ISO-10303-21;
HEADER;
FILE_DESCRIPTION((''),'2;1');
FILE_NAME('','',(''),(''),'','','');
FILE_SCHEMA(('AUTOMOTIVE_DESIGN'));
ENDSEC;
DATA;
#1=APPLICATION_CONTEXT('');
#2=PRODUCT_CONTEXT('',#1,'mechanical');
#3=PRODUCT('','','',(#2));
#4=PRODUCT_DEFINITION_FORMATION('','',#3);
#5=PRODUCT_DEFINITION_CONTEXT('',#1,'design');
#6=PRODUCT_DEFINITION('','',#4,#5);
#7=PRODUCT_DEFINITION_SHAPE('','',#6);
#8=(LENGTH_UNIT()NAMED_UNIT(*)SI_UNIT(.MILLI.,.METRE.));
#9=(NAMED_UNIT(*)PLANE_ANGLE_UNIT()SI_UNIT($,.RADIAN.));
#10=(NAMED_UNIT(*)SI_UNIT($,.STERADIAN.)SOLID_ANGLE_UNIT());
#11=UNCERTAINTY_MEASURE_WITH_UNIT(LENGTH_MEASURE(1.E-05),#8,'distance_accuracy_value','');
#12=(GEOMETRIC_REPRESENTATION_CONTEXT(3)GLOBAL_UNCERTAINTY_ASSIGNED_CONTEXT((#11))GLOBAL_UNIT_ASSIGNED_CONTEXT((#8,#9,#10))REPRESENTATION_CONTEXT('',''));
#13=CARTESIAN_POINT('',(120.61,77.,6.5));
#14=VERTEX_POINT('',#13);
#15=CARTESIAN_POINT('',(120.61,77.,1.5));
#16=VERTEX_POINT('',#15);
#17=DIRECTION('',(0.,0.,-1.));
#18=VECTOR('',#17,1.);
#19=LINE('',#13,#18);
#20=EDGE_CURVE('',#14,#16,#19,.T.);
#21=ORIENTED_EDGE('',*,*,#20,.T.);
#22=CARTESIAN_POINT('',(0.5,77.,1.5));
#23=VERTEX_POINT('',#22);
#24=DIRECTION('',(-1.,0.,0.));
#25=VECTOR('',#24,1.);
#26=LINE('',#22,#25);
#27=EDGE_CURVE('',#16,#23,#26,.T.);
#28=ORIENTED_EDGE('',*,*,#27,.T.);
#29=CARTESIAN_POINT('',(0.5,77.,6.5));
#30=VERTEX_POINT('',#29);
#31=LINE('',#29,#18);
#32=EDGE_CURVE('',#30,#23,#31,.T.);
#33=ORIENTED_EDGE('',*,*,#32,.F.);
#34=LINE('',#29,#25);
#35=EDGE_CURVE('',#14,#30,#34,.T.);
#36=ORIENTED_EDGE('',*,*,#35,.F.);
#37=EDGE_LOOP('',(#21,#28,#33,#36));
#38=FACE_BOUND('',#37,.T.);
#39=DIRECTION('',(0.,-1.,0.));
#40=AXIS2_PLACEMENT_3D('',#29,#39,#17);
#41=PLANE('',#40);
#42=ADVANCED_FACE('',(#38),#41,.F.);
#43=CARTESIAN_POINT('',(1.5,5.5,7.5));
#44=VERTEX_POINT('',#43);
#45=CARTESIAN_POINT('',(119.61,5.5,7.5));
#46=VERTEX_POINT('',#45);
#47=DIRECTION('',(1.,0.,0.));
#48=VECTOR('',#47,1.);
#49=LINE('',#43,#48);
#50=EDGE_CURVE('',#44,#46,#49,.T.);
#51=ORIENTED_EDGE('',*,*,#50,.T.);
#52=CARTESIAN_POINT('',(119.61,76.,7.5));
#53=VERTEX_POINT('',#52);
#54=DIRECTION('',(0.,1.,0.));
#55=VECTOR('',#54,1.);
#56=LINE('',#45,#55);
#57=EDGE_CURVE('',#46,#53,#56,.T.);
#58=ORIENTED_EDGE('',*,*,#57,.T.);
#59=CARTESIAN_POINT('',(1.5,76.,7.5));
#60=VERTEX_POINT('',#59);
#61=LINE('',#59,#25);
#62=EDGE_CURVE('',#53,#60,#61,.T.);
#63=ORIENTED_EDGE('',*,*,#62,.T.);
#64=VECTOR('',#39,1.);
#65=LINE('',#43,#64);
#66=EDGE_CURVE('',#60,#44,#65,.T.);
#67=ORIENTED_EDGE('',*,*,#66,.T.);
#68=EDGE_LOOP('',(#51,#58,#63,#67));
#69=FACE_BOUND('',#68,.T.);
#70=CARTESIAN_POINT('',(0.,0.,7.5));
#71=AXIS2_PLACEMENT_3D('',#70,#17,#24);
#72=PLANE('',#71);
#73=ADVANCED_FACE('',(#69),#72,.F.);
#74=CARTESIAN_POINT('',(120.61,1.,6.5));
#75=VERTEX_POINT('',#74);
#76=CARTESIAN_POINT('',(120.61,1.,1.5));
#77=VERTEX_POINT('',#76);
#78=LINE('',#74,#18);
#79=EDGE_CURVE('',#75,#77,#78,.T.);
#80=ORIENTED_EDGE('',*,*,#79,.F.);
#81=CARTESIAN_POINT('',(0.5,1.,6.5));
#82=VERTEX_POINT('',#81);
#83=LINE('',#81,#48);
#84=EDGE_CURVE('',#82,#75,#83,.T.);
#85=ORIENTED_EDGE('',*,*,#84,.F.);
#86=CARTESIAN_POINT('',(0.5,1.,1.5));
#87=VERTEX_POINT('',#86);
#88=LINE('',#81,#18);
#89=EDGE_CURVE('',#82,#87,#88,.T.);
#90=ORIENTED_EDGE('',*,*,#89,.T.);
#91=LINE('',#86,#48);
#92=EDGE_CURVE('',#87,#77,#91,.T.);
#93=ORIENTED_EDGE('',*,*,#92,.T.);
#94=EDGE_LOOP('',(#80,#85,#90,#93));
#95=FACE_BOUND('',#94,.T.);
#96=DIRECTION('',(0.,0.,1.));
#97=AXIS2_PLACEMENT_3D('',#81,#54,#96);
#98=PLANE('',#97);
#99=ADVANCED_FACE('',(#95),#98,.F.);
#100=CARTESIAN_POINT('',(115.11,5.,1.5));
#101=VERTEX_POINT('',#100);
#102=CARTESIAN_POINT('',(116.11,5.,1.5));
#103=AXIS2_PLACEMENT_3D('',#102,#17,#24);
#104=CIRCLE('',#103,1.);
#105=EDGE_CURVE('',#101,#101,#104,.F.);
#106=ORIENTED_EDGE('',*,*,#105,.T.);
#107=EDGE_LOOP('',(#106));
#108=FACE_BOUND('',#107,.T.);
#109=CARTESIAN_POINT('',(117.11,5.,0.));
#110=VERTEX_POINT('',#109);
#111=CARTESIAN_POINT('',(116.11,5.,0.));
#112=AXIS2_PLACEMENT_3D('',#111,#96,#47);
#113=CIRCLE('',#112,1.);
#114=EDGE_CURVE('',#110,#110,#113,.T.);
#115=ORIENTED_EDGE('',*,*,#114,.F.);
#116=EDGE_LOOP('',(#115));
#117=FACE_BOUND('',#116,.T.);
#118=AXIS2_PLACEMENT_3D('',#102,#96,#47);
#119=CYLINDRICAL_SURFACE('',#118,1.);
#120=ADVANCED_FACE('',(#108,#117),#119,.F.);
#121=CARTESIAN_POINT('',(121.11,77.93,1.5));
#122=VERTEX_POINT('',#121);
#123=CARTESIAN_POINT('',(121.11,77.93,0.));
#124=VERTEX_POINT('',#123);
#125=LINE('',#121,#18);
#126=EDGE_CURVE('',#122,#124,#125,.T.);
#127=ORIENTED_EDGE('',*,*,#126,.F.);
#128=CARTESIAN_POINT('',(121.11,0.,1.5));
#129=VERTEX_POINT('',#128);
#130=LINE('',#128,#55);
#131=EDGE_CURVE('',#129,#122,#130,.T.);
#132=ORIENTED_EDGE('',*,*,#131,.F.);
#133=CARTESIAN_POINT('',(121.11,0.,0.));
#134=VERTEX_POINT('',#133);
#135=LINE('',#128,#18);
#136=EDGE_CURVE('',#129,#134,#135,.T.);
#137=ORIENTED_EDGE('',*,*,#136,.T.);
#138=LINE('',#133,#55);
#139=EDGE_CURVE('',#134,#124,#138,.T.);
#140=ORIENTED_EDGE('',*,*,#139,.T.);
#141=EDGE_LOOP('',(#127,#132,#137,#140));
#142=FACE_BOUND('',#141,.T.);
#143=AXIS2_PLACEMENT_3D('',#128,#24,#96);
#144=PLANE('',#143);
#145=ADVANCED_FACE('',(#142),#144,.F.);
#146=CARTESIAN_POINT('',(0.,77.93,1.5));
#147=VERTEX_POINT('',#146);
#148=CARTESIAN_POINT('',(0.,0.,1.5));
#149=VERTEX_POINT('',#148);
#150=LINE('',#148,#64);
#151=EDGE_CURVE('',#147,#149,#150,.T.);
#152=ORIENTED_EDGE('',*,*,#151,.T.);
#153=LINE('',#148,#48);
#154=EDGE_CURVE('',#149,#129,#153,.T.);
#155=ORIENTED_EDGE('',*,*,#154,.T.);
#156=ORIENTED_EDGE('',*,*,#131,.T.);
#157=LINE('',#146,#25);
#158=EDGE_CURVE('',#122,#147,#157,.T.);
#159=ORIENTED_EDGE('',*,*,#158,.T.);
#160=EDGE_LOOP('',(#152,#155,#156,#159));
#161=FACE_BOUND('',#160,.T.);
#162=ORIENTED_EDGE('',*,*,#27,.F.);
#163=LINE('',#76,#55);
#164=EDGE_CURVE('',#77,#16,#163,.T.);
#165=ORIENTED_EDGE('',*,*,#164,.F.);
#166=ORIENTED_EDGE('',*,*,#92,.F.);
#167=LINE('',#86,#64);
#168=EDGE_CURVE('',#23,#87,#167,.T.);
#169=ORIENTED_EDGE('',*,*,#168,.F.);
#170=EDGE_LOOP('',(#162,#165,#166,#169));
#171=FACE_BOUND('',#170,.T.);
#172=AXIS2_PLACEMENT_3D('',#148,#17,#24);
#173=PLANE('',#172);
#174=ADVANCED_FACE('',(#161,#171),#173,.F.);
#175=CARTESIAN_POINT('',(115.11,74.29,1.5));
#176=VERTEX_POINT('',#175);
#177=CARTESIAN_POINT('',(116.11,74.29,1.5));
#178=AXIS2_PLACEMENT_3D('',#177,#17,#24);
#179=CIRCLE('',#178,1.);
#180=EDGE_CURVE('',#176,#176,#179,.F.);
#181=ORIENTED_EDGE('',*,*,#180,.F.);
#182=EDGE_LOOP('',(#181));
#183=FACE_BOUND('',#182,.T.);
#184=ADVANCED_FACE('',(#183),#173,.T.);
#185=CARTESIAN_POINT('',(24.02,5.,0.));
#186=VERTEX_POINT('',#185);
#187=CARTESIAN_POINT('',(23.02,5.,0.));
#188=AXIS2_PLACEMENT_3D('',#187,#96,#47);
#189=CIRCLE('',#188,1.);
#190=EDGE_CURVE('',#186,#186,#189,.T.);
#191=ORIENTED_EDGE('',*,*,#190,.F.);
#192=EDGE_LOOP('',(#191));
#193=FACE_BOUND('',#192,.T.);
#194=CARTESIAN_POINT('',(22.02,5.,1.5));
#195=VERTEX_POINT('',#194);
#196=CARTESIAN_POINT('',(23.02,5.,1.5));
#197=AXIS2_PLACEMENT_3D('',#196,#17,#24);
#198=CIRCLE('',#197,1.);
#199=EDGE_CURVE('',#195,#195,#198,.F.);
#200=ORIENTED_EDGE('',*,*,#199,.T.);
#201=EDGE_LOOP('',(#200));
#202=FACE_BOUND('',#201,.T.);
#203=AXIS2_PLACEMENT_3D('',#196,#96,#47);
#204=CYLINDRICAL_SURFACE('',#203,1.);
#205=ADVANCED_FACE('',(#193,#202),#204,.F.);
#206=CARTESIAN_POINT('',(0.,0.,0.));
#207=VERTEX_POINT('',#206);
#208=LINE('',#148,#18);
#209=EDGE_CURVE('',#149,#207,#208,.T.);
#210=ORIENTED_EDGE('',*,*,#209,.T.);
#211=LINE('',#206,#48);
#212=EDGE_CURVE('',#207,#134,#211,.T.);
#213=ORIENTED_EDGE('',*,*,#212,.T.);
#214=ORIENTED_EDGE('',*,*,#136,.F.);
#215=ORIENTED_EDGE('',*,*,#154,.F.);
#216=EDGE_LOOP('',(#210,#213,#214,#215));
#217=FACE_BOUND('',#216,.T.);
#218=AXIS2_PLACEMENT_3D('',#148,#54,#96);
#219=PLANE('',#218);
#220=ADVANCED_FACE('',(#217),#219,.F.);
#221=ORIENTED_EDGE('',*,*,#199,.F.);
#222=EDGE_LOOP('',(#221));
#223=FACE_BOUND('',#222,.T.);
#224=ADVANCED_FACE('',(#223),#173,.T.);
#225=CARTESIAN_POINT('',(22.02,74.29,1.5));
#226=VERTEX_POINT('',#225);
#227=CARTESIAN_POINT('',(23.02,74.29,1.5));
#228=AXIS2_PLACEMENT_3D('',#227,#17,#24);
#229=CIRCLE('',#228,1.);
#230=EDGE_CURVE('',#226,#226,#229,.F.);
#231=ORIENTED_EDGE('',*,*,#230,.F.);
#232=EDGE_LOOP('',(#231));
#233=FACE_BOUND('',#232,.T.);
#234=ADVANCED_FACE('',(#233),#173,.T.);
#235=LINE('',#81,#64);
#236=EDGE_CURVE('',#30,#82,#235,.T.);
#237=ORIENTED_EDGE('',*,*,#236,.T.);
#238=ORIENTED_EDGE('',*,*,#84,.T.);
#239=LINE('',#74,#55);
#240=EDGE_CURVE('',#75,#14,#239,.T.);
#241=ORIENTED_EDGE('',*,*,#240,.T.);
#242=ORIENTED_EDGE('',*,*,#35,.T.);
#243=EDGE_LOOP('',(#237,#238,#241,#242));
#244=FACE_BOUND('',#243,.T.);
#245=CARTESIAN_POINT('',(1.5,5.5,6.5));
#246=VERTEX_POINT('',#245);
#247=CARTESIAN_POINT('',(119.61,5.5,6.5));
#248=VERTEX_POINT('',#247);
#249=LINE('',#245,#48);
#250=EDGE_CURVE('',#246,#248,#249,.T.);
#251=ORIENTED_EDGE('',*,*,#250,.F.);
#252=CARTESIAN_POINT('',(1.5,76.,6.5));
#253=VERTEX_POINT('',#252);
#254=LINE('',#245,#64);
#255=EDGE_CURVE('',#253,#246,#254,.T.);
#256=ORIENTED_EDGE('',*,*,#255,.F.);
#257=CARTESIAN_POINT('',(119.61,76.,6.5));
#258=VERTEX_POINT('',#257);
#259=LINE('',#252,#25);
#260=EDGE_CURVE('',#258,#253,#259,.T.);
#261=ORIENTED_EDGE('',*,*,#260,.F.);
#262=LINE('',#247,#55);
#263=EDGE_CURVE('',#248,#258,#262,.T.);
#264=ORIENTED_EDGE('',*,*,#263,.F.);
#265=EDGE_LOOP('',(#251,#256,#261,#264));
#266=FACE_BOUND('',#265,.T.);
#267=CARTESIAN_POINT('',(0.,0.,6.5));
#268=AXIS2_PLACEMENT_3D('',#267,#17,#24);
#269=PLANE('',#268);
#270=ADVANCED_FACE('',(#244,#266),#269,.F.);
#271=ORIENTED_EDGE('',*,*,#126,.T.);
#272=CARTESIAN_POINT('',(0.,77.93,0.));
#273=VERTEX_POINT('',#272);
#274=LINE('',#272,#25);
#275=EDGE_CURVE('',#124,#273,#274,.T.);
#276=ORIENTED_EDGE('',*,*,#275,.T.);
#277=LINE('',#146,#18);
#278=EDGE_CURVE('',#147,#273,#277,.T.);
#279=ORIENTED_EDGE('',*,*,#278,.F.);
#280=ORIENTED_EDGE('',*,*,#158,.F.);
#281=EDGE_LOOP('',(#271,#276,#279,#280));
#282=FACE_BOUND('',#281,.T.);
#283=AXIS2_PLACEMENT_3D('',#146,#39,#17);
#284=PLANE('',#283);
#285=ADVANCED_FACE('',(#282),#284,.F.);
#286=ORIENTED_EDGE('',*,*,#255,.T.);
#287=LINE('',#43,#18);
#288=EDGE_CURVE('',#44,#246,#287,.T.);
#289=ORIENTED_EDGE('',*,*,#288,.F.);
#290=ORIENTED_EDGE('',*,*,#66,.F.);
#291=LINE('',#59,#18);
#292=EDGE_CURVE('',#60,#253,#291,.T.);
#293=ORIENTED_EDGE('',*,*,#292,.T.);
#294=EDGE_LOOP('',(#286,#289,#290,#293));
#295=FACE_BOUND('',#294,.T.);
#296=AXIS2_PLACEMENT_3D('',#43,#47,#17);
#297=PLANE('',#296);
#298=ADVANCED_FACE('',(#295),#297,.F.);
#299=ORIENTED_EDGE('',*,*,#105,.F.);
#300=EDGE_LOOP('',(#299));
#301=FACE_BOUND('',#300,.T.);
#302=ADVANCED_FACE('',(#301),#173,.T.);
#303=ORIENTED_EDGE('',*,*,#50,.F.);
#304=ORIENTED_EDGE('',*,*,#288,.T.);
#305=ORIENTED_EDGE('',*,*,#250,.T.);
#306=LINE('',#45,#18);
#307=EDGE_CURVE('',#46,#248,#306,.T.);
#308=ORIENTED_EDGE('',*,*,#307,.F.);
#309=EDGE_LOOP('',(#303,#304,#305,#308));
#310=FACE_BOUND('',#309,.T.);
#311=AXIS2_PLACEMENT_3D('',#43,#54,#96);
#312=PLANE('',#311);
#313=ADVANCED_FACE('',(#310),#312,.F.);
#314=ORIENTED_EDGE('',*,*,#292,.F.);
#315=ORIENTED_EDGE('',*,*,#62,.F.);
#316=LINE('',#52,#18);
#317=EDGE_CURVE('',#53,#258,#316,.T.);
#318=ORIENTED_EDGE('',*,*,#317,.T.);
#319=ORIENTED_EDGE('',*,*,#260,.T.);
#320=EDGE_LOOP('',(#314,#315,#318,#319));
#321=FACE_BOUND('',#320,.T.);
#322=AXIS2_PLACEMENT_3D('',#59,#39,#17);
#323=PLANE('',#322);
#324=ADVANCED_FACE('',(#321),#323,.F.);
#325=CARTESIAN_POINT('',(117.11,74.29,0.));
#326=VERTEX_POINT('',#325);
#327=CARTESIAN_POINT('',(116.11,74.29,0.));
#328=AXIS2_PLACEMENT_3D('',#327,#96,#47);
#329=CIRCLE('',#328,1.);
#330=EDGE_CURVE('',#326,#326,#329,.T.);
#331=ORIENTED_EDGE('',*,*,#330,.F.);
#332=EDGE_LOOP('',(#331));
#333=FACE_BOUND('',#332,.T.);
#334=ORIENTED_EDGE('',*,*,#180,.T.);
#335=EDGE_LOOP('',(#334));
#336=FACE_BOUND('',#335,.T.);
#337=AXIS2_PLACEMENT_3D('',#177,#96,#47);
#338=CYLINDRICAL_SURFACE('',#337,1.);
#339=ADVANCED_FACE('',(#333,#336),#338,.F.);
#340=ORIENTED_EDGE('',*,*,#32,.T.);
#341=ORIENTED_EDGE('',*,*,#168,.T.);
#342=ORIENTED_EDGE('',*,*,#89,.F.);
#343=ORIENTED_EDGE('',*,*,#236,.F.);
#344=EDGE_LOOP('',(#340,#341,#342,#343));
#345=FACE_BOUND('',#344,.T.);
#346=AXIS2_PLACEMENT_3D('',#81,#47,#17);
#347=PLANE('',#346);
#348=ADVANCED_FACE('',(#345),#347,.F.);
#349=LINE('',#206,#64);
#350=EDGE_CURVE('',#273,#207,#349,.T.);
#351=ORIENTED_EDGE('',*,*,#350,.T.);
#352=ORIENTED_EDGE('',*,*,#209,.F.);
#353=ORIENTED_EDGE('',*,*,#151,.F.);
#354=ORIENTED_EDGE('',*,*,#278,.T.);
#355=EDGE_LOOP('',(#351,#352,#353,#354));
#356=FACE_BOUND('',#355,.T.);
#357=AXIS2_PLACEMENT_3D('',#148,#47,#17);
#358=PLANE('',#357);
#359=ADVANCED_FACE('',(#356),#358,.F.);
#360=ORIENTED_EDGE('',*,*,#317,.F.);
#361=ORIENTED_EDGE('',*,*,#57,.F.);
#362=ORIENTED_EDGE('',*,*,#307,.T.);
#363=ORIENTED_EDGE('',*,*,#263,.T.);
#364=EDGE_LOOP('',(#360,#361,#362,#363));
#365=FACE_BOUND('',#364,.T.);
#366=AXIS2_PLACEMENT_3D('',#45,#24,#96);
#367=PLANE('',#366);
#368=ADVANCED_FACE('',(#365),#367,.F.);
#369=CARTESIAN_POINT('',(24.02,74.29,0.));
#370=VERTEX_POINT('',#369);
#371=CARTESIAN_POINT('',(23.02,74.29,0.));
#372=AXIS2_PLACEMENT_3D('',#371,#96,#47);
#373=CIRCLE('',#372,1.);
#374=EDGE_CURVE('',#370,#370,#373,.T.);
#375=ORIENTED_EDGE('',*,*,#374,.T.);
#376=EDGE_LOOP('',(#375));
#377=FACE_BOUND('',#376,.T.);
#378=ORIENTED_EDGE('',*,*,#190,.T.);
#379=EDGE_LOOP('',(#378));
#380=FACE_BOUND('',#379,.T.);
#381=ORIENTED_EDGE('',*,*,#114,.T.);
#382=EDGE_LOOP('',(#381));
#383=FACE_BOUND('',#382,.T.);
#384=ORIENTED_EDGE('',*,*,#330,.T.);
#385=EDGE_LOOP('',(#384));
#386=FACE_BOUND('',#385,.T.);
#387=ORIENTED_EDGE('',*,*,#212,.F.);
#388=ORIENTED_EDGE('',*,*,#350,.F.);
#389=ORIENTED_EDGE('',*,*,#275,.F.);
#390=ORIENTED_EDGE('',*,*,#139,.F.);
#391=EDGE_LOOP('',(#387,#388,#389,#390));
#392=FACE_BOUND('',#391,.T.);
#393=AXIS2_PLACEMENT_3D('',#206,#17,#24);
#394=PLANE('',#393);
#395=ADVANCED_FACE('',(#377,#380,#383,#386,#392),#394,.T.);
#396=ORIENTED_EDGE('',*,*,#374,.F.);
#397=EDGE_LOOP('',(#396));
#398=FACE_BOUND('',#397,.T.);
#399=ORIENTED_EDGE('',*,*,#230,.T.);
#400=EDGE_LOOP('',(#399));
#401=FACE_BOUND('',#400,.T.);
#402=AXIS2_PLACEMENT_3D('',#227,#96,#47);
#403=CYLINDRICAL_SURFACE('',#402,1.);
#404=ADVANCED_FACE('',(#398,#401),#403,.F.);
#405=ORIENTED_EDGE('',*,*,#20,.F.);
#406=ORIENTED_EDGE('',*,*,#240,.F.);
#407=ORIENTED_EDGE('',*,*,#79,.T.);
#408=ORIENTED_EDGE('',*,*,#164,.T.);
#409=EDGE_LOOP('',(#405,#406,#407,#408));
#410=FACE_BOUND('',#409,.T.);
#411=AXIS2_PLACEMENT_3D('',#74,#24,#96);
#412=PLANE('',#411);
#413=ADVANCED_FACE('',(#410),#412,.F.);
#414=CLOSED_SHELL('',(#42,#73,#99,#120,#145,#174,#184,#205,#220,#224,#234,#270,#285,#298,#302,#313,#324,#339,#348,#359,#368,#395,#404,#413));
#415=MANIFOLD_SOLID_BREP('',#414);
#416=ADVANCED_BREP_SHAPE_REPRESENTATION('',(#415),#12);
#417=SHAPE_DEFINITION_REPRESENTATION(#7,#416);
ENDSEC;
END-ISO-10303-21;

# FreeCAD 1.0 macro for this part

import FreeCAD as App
import Part
import Sketcher
from FreeCAD import Vector

doc = App.newDocument("Part")
body = doc.addObject("PartDesign::Body", "Body")

# Sketch on XY plane
sketch1 = body.newObject("Sketcher::SketchObject", "Sketch")
sketch1.AttachmentSupport = (doc.getObject("XY_Plane"), [""])
sketch1.MapMode = "FlatFace"
sketch1.addGeometry([
    Part.LineSegment(Vector(0, 77.93, 0), Vector(0, 0, 0)),
    Part.LineSegment(Vector(0, 0, 0), Vector(121.11, 0, 0)),
    Part.LineSegment(Vector(121.11, 0, 0), Vector(121.11, 77.93, 0)),
    Part.LineSegment(Vector(121.11, 77.93, 0), Vector(0, 77.93, 0)),
], False)
sketch1.addConstraint([
    Sketcher.Constraint("Coincident", 0, 2, 1, 1),
    Sketcher.Constraint("Coincident", 1, 2, 2, 1),
    Sketcher.Constraint("Coincident", 2, 2, 3, 1),
    Sketcher.Constraint("Coincident", 3, 2, 0, 1),
    Sketcher.Constraint("Vertical", 0),
    Sketcher.Constraint("Horizontal", 1),
    Sketcher.Constraint("Vertical", 2),
    Sketcher.Constraint("Horizontal", 3),
    Sketcher.Constraint("Coincident", 0, 2, -1, 1),
    Sketcher.Constraint("DistanceX", 1, 1, 1, 2, 121.11),
    Sketcher.Constraint("DistanceY", 0, 2, 0, 1, 77.93),
])
pad1 = body.newObject("PartDesign::Pad", "Pad")
pad1.Profile = sketch1
pad1.Length = 1.5

# Sketch on XY plane
sketch2 = body.newObject("Sketcher::SketchObject", "Sketch001")
sketch2.AttachmentSupport = (doc.getObject("XY_Plane"), [""])
sketch2.MapMode = "FlatFace"
sketch2.AttachmentOffset = App.Placement(Vector(0, 0, 1.5), App.Rotation())
sketch2.addGeometry([
    Part.Circle(Vector(23.02, 74.29, 0), Vector(0, 0, 1), 1),
    Part.Circle(Vector(23.02, 5, 0), Vector(0, 0, 1), 1),
    Part.Circle(Vector(116.11, 74.29, 0), Vector(0, 0, 1), 1),
    Part.Circle(Vector(116.11, 5, 0), Vector(0, 0, 1), 1),
], False)
sketch2.addConstraint([
    Sketcher.Constraint("Equal", 0, 1),
    Sketcher.Constraint("Equal", 1, 2),
    Sketcher.Constraint("Equal", 2, 3),
    Sketcher.Constraint("Horizontal", 0, 3, 2, 3),
    Sketcher.Constraint("Horizontal", 1, 3, 3, 3),
    Sketcher.Constraint("Vertical", 0, 3, 1, 3),
    Sketcher.Constraint("Vertical", 2, 3, 3, 3),
    Sketcher.Constraint("Diameter", 0, 2.0),
    Sketcher.Constraint("DistanceY", -1, 1, 1, 3, 5.0),
    Sketcher.Constraint("DistanceX", -1, 1, 0, 3, 23.02),
    Sketcher.Constraint("DistanceY", -1, 1, 0, 3, 74.29),
    Sketcher.Constraint("DistanceX", -1, 1, 2, 3, 116.11),
])
doc.recompute()
hole = body.newObject("PartDesign::Hole", "Hole")
hole.Profile = sketch2
hole.ThreadType = "None"
hole.Diameter = 2
hole.DepthType = "ThroughAll"

# Sketch on XY plane
sketch3 = body.newObject("Sketcher::SketchObject", "Sketch002")
sketch3.AttachmentSupport = (doc.getObject("XY_Plane"), [""])
sketch3.MapMode = "FlatFace"
sketch3.AttachmentOffset = App.Placement(Vector(0, 0, 1.5), App.Rotation())
sketch3.addGeometry([
    Part.LineSegment(Vector(0.5, 77, 0), Vector(0.5, 1, 0)),
    Part.LineSegment(Vector(0.5, 1, 0), Vector(120.61, 1, 0)),
    Part.LineSegment(Vector(120.61, 1, 0), Vector(120.61, 77, 0)),
    Part.LineSegment(Vector(120.61, 77, 0), Vector(0.5, 77, 0)),
], False)
sketch3.addConstraint([
    Sketcher.Constraint("Coincident", 0, 2, 1, 1),
    Sketcher.Constraint("Coincident", 1, 2, 2, 1),
    Sketcher.Constraint("Coincident", 2, 2, 3, 1),
    Sketcher.Constraint("Coincident", 3, 2, 0, 1),
    Sketcher.Constraint("Vertical", 0),
    Sketcher.Constraint("Horizontal", 1),
    Sketcher.Constraint("Vertical", 2),
    Sketcher.Constraint("Horizontal", 3),
    Sketcher.Constraint("DistanceY", 0, 2, 0, 1, 76.0),
    Sketcher.Constraint("DistanceY", -1, 1, 0, 2, 1.0),
    Sketcher.Constraint("DistanceX", 1, 1, 1, 2, 120.11),
    Sketcher.Constraint("DistanceX", -1, 1, 0, 2, 0.5),
])
pad2 = body.newObject("PartDesign::Pad", "Pad001")
pad2.Profile = sketch3
pad2.Length = 5

# Sketch on XY plane
sketch4 = body.newObject("Sketcher::SketchObject", "Sketch003")
sketch4.AttachmentSupport = (doc.getObject("XY_Plane"), [""])
sketch4.MapMode = "FlatFace"
sketch4.AttachmentOffset = App.Placement(Vector(0, 0, 6.5), App.Rotation())
sketch4.addGeometry([
    Part.LineSegment(Vector(1.5, 76, 0), Vector(1.5, 5.5, 0)),
    Part.LineSegment(Vector(1.5, 5.5, 0), Vector(119.61, 5.5, 0)),
    Part.LineSegment(Vector(119.61, 5.5, 0), Vector(119.61, 76, 0)),
    Part.LineSegment(Vector(119.61, 76, 0), Vector(1.5, 76, 0)),
], False)
sketch4.addConstraint([
    Sketcher.Constraint("Coincident", 0, 2, 1, 1),
    Sketcher.Constraint("Coincident", 1, 2, 2, 1),
    Sketcher.Constraint("Coincident", 2, 2, 3, 1),
    Sketcher.Constraint("Coincident", 3, 2, 0, 1),
    Sketcher.Constraint("Vertical", 0),
    Sketcher.Constraint("Horizontal", 1),
    Sketcher.Constraint("Vertical", 2),
    Sketcher.Constraint("Horizontal", 3),
    Sketcher.Constraint("DistanceY", 0, 2, 0, 1, 70.5),
    Sketcher.Constraint("DistanceY", -1, 1, 2, 2, 76.0),
    Sketcher.Constraint("DistanceX", 1, 1, 1, 2, 118.11),
    Sketcher.Constraint("DistanceX", -1, 1, 0, 2, 1.5),
])
pad3 = body.newObject("PartDesign::Pad", "Pad002")
pad3.Profile = sketch4
pad3.Length = 1

doc.recompute()
